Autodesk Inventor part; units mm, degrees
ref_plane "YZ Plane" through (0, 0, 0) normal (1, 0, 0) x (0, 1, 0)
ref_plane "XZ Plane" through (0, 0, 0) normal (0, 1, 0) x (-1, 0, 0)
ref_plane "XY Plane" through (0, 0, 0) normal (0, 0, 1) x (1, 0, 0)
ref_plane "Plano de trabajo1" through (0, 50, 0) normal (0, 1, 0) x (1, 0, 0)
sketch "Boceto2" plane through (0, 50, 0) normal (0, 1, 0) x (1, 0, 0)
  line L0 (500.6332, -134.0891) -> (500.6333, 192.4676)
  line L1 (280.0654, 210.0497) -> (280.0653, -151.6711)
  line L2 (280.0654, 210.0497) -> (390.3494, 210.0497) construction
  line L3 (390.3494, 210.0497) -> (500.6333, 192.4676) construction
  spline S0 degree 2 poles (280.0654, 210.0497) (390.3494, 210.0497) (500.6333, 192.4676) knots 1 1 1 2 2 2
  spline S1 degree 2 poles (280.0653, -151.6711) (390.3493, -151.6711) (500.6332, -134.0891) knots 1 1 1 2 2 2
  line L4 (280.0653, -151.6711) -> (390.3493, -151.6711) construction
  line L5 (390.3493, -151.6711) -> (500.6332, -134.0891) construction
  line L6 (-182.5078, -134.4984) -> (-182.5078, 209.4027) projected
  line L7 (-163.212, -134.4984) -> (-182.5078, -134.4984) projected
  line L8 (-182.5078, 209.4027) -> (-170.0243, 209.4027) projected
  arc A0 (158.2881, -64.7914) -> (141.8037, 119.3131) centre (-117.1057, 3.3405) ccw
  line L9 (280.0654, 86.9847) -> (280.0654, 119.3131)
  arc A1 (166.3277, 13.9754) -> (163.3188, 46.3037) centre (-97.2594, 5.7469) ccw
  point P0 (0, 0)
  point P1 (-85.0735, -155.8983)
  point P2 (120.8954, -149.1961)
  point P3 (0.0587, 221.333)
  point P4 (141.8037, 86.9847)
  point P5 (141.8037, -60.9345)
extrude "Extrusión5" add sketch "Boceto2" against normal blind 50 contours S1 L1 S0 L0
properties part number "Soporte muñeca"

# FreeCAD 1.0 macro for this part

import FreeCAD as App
import Part
import Sketcher

V = App.Vector
Q = App.Units.Quantity

doc = App.newDocument("Part")
body = doc.addObject("PartDesign::Body", "Body")

sketch1 = body.newObject("Sketcher::SketchObject", "Sketch")
sketch1.AttachmentSupport = (doc.getObject("XZ_Plane"), [""])
sketch1.MapMode = "FlatFace"
sketch1.AttachmentOffset = App.Placement(V(0, 0, -50), App.Rotation())
sketch1.addGeometry(Part.BSplineCurve([V(280.0653, 151.6711, 0), V(390.3493, 151.6711, 0), V(500.6332, 134.0891, 0)], [3, 3], [1, 2], False, 2, [1, 1, 1], False), False)
sketch1.addGeometry(Part.LineSegment(V(500.6332, 134.0891, 0), V(500.6333, -192.4676, 0)), False)
sketch1.addGeometry(Part.BSplineCurve([V(280.0654, -210.0497, 0), V(390.3494, -210.0497, 0), V(500.6333, -192.4676, 0)], [3, 3], [1, 2], False, 2, [1, 1, 1], False), False)
sketch1.addGeometry(Part.LineSegment(V(280.0654, -210.0497, 0), V(280.065375, -119.3131, 0)), False)
sketch1.addGeometry(Part.LineSegment(V(280.0654, -119.3131, 0), V(280.0654, -86.9847, 0)), False)
sketch1.addGeometry(Part.LineSegment(V(280.065366, -86.9847, 0), V(280.0653, 151.6711, 0)), False)
sketch1.addConstraint(Sketcher.Constraint("Block", 0))
sketch1.addConstraint(Sketcher.Constraint("Block", 2))
sketch1.addConstraint(Sketcher.Constraint("Coincident", 0, 2, 1, 1))
sketch1.addConstraint(Sketcher.Constraint("Coincident", 1, 2, 2, 2))
sketch1.addConstraint(Sketcher.Constraint("Coincident", 2, 1, 3, 1))
sketch1.addConstraint(Sketcher.Constraint("Coincident", 3, 2, 4, 1))
sketch1.addConstraint(Sketcher.Constraint("Coincident", 4, 2, 5, 1))
sketch1.addConstraint(Sketcher.Constraint("Coincident", 5, 2, 0, 1))
sketch1.addConstraint(Sketcher.Constraint("Vertical", 3))
sketch1.addConstraint(Sketcher.Constraint("Vertical", 4))
sketch1.addConstraint(Sketcher.Constraint("DistanceY", 3, 1, 3, 2, Q("90.7366 mm")))
sketch1.addConstraint(Sketcher.Constraint("DistanceY", 4, 1, 4, 2, Q("32.3284 mm")))
pad1 = body.newObject("PartDesign::Pad", "Pad")
pad1.Profile = sketch1
pad1.Length = 50

doc.recompute()
